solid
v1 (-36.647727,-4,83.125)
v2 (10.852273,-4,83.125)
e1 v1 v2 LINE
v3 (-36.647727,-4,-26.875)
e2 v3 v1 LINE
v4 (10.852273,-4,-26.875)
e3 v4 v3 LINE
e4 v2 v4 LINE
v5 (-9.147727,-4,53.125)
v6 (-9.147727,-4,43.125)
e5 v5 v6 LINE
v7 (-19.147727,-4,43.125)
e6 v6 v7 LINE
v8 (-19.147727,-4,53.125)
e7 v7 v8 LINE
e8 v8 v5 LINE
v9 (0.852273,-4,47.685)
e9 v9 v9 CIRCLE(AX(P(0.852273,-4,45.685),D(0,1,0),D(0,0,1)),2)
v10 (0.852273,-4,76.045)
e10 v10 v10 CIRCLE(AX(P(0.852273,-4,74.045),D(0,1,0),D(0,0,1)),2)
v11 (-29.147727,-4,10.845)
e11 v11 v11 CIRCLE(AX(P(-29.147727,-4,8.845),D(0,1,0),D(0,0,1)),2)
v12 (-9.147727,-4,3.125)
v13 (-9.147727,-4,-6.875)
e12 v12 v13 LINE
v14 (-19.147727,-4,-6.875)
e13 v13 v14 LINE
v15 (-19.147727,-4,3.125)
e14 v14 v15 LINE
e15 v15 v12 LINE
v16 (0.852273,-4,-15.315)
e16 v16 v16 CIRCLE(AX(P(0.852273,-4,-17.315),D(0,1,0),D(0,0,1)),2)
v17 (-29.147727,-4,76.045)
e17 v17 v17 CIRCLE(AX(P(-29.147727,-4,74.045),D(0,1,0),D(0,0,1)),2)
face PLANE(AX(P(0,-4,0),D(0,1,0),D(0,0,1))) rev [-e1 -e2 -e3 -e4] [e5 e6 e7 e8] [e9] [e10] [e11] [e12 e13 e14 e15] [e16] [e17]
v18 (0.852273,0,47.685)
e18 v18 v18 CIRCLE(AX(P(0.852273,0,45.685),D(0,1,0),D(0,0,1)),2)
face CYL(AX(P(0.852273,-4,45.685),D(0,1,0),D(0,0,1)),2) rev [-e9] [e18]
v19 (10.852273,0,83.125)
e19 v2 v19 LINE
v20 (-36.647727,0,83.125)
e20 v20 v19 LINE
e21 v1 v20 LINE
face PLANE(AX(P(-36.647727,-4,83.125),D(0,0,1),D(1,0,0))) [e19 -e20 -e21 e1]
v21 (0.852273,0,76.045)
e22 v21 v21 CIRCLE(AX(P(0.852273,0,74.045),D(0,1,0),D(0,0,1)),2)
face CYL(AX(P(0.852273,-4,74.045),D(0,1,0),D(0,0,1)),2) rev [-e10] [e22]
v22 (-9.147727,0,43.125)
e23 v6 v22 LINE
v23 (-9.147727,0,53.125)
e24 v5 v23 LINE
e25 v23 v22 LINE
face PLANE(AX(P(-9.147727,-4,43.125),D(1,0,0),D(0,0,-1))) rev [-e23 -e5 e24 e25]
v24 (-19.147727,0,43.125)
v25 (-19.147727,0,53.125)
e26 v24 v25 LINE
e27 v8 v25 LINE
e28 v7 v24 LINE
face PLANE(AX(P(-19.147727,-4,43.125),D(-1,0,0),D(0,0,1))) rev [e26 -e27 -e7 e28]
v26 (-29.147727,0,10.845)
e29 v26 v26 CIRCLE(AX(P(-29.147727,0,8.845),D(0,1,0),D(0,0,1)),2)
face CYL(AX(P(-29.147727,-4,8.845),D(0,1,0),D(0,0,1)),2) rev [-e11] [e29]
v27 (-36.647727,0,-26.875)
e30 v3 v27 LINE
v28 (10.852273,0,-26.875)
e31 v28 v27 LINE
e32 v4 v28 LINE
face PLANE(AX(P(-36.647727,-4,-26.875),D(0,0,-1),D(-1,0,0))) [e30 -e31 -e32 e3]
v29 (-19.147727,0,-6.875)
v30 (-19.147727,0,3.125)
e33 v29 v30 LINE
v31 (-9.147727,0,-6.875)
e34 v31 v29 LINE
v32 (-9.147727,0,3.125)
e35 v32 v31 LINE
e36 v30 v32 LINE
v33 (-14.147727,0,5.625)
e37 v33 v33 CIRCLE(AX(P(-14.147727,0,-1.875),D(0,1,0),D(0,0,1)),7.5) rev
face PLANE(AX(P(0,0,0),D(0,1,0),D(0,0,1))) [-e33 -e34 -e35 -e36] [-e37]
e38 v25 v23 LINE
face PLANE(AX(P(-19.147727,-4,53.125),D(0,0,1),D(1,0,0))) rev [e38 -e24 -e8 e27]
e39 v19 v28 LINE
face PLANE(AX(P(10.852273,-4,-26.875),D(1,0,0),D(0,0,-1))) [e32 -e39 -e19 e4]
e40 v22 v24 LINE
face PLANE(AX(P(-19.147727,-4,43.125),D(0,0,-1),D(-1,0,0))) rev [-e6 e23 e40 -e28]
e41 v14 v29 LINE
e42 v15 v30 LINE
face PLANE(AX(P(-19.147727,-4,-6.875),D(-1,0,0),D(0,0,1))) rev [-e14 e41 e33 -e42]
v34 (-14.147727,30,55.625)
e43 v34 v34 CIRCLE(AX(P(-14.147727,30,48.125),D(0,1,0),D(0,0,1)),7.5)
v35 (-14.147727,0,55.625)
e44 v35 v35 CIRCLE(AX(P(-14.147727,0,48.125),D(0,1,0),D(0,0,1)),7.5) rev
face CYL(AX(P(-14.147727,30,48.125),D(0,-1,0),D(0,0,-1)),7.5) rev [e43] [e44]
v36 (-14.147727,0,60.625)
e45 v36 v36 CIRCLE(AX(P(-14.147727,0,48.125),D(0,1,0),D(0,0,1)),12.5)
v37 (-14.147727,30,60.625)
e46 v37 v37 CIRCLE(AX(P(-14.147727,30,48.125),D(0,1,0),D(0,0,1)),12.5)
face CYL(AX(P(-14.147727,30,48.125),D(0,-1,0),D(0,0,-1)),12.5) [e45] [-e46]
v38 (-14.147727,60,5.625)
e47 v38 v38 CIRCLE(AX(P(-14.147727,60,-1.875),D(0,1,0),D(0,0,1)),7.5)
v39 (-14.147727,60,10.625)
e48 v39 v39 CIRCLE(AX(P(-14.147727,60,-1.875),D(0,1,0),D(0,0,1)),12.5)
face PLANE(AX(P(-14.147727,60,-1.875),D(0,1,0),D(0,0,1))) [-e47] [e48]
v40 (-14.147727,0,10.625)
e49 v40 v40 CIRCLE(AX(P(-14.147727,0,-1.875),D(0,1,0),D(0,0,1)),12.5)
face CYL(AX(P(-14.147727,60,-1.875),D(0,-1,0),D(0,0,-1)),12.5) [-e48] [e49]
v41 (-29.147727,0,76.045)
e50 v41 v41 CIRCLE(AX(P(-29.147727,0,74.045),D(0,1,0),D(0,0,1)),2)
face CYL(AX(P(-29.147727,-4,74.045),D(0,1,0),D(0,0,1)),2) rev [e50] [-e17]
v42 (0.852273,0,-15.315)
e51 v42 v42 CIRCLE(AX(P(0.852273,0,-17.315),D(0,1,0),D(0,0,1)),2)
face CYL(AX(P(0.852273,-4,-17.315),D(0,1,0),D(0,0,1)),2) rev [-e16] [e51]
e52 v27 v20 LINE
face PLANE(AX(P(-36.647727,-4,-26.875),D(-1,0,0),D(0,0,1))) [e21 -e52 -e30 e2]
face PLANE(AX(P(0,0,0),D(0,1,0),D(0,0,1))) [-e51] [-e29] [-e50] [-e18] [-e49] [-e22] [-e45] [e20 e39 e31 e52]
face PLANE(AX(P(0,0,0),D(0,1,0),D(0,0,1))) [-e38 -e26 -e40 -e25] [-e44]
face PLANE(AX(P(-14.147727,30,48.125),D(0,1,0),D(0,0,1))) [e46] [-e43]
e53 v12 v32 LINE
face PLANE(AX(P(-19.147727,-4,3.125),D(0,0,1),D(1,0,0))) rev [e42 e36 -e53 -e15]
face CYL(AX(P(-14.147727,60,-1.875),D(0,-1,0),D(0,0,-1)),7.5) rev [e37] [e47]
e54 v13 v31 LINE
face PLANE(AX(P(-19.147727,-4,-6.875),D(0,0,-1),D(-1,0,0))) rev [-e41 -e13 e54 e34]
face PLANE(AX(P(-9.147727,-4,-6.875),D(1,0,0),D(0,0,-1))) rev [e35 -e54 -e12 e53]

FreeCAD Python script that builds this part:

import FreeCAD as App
import Part
import Sketcher
from FreeCAD import Vector


def add_polygon(sketch, points):
    """Adds a closed chain of lines whose ends are joined by coincident constraints."""
    first, n = sketch.GeometryCount, len(points)
    for a, b in zip(points, points[1:] + points[:1]):
        sketch.addGeometry(Part.LineSegment(App.Vector(*a, 0), App.Vector(*b, 0)), False)
    for i in range(n):
        sketch.addConstraint(Sketcher.Constraint("Coincident", first + i, 2, first + (i + 1) % n, 1))

doc = App.newDocument("Part")
body = doc.addObject("PartDesign::Body", "Body")

sketch1 = doc.addObject("Sketcher::SketchObject", "Sketch")
body.addObject(sketch1)
sketch1.AttachmentSupport = (doc.XZ_Plane, [""])
sketch1.MapMode = "FlatFace"
add_polygon(sketch1, [(-36.6, -26.9), (-36.6, 83.1), (10.9, 83.1), (10.9, -26.9)])
sketch1.addGeometry(Part.Circle(Vector(-29.1, 74, 0), Vector(0, 0, 1), 2), False)
sketch1.addGeometry(Part.Circle(Vector(0.9, 74, 0), Vector(0, 0, 1), 2), False)
add_polygon(sketch1, [(-9.1, 53.1), (-19.1, 53.1), (-19.1, 43.1), (-9.1, 43.1)])
sketch1.addGeometry(Part.Circle(Vector(0.9, 45.7, 0), Vector(0, 0, 1), 2), False)
sketch1.addGeometry(Part.Circle(Vector(-29.1, 8.8, 0), Vector(0, 0, 1), 2), False)
add_polygon(sketch1, [(-9.1, 3.1), (-19.1, 3.1), (-19.1, -6.9), (-9.1, -6.9)])
sketch1.addGeometry(Part.Circle(Vector(0.9, -17.3, 0), Vector(0, 0, 1), 2), False)
sketch1.addConstraint([
    Sketcher.Constraint("Vertical", 0),
    Sketcher.Constraint("Horizontal", 1),
    Sketcher.Constraint("Vertical", 2),
    Sketcher.Constraint("Horizontal", 3),
    Sketcher.Constraint("Horizontal", 6),
    Sketcher.Constraint("Vertical", 7),
    Sketcher.Constraint("Horizontal", 8),
    Sketcher.Constraint("Vertical", 9),
    Sketcher.Constraint("Horizontal", 12),
    Sketcher.Constraint("Vertical", 13),
    Sketcher.Constraint("Horizontal", 14),
    Sketcher.Constraint("Vertical", 15),
    Sketcher.Constraint("Equal", 4, 5),
    Sketcher.Constraint("Equal", 5, 10),
    Sketcher.Constraint("Equal", 10, 11),
    Sketcher.Constraint("Equal", 11, 16),
    Sketcher.Constraint("Horizontal", 4, 3, 5, 3),
    Sketcher.Constraint("Vertical", 5, 3, 10, 3),
    Sketcher.Constraint("Vertical", 4, 3, 11, 3),
    Sketcher.Constraint("Vertical", 10, 3, 16, 3),
    Sketcher.Constraint("Vertical", 7, 2, 12, 2),
    Sketcher.Constraint("Vertical", 9, 2, 14, 2),
    Sketcher.Constraint("Equal", 14, 7),
    Sketcher.Constraint("Equal", 9, 13),
    Sketcher.Constraint("Diameter", 4, 4.0),
    Sketcher.Constraint("DistanceX", 6, 2, 6, 1, 10.0),
    Sketcher.Constraint("DistanceY", 0, 1, 0, 2, 110.0),
    Sketcher.Constraint("DistanceX", 1, 1, 1, 2, 47.5),
    Sketcher.Constraint("DistanceX", 4, 3, 5, 3, 30.0),
    Sketcher.Constraint("DistanceY", 16, 3, 10, 3, 63.0),
    Sketcher.Constraint("DistanceX", 5, 3, 1, 2, 10.0),
    Sketcher.Constraint("DistanceX", 6, 2, 10, 3, 20.0),
    Sketcher.Constraint("DistanceY", 6, 2, 0, 2, 30.0),
    Sketcher.Constraint("DistanceY", 3, 2, 12, 2, 30.0),
    Sketcher.Constraint("DistanceY", 11, 3, 4, 3, 65.2),
    Sketcher.Constraint("DistanceY", 10, 3, 5, 3, 28.36),
    Sketcher.Constraint("DistanceY", 4, 3, 0, 2, 9.08),
    Sketcher.Constraint("DistanceY", -1, 1, 4, 3, 74.045),
    Sketcher.Constraint("DistanceX", 4, 3, -1, 1, 29.147727),
])
pad1 = doc.addObject("PartDesign::Pad", "Pad")
body.addObject(pad1)
pad1.Profile = sketch1
pad1.Length = 4

sketch2 = doc.addObject("Sketcher::SketchObject", "Sketch001")
body.addObject(sketch2)
sketch2.AttachmentSupport = (doc.XZ_Plane, [""])
sketch2.MapMode = "FlatFace"
sketch2.addGeometry([
    Part.Circle(Vector(-14, 48, 0), Vector(0, 0, 1), 12),
    Part.Circle(Vector(-14, 48, 0), Vector(0, 0, 1), 8),
], False)
sketch2.addConstraint([
    Sketcher.Constraint("Coincident", 1, 3, 0, 3),
    Sketcher.Constraint("Diameter", 0, 25.0),
    Sketcher.Constraint("Diameter", 1, 15.0),
    Sketcher.Constraint("DistanceY", -1, 1, 0, 3, 48.125),
    Sketcher.Constraint("DistanceX", 0, 3, -1, 1, 14.147727),
])
pad2 = doc.addObject("PartDesign::Pad", "Pad001")
body.addObject(pad2)
pad2.Profile = sketch2
pad2.Length = 30
pad2.Reversed = True

sketch3 = doc.addObject("Sketcher::SketchObject", "Sketch002")
body.addObject(sketch3)
sketch3.AttachmentSupport = (doc.XZ_Plane, [""])
sketch3.MapMode = "FlatFace"
sketch3.addGeometry([
    Part.Circle(Vector(-14, -2, 0), Vector(0, 0, 1), 12),
    Part.Circle(Vector(-14, -2, 0), Vector(0, 0, 1), 8),
], False)
sketch3.addConstraint([
    Sketcher.Constraint("Coincident", 1, 3, 0, 3),
    Sketcher.Constraint("Diameter", 0, 25.0),
    Sketcher.Constraint("Diameter", 1, 15.0),
    Sketcher.Constraint("DistanceY", 0, 3, -1, 1, 1.875),
    Sketcher.Constraint("DistanceX", 0, 3, -1, 1, 14.147727),
])
pad3 = doc.addObject("PartDesign::Pad", "Pad002")
body.addObject(pad3)
pad3.Profile = sketch3
pad3.Length = 60
pad3.Reversed = True

doc.recompute()
